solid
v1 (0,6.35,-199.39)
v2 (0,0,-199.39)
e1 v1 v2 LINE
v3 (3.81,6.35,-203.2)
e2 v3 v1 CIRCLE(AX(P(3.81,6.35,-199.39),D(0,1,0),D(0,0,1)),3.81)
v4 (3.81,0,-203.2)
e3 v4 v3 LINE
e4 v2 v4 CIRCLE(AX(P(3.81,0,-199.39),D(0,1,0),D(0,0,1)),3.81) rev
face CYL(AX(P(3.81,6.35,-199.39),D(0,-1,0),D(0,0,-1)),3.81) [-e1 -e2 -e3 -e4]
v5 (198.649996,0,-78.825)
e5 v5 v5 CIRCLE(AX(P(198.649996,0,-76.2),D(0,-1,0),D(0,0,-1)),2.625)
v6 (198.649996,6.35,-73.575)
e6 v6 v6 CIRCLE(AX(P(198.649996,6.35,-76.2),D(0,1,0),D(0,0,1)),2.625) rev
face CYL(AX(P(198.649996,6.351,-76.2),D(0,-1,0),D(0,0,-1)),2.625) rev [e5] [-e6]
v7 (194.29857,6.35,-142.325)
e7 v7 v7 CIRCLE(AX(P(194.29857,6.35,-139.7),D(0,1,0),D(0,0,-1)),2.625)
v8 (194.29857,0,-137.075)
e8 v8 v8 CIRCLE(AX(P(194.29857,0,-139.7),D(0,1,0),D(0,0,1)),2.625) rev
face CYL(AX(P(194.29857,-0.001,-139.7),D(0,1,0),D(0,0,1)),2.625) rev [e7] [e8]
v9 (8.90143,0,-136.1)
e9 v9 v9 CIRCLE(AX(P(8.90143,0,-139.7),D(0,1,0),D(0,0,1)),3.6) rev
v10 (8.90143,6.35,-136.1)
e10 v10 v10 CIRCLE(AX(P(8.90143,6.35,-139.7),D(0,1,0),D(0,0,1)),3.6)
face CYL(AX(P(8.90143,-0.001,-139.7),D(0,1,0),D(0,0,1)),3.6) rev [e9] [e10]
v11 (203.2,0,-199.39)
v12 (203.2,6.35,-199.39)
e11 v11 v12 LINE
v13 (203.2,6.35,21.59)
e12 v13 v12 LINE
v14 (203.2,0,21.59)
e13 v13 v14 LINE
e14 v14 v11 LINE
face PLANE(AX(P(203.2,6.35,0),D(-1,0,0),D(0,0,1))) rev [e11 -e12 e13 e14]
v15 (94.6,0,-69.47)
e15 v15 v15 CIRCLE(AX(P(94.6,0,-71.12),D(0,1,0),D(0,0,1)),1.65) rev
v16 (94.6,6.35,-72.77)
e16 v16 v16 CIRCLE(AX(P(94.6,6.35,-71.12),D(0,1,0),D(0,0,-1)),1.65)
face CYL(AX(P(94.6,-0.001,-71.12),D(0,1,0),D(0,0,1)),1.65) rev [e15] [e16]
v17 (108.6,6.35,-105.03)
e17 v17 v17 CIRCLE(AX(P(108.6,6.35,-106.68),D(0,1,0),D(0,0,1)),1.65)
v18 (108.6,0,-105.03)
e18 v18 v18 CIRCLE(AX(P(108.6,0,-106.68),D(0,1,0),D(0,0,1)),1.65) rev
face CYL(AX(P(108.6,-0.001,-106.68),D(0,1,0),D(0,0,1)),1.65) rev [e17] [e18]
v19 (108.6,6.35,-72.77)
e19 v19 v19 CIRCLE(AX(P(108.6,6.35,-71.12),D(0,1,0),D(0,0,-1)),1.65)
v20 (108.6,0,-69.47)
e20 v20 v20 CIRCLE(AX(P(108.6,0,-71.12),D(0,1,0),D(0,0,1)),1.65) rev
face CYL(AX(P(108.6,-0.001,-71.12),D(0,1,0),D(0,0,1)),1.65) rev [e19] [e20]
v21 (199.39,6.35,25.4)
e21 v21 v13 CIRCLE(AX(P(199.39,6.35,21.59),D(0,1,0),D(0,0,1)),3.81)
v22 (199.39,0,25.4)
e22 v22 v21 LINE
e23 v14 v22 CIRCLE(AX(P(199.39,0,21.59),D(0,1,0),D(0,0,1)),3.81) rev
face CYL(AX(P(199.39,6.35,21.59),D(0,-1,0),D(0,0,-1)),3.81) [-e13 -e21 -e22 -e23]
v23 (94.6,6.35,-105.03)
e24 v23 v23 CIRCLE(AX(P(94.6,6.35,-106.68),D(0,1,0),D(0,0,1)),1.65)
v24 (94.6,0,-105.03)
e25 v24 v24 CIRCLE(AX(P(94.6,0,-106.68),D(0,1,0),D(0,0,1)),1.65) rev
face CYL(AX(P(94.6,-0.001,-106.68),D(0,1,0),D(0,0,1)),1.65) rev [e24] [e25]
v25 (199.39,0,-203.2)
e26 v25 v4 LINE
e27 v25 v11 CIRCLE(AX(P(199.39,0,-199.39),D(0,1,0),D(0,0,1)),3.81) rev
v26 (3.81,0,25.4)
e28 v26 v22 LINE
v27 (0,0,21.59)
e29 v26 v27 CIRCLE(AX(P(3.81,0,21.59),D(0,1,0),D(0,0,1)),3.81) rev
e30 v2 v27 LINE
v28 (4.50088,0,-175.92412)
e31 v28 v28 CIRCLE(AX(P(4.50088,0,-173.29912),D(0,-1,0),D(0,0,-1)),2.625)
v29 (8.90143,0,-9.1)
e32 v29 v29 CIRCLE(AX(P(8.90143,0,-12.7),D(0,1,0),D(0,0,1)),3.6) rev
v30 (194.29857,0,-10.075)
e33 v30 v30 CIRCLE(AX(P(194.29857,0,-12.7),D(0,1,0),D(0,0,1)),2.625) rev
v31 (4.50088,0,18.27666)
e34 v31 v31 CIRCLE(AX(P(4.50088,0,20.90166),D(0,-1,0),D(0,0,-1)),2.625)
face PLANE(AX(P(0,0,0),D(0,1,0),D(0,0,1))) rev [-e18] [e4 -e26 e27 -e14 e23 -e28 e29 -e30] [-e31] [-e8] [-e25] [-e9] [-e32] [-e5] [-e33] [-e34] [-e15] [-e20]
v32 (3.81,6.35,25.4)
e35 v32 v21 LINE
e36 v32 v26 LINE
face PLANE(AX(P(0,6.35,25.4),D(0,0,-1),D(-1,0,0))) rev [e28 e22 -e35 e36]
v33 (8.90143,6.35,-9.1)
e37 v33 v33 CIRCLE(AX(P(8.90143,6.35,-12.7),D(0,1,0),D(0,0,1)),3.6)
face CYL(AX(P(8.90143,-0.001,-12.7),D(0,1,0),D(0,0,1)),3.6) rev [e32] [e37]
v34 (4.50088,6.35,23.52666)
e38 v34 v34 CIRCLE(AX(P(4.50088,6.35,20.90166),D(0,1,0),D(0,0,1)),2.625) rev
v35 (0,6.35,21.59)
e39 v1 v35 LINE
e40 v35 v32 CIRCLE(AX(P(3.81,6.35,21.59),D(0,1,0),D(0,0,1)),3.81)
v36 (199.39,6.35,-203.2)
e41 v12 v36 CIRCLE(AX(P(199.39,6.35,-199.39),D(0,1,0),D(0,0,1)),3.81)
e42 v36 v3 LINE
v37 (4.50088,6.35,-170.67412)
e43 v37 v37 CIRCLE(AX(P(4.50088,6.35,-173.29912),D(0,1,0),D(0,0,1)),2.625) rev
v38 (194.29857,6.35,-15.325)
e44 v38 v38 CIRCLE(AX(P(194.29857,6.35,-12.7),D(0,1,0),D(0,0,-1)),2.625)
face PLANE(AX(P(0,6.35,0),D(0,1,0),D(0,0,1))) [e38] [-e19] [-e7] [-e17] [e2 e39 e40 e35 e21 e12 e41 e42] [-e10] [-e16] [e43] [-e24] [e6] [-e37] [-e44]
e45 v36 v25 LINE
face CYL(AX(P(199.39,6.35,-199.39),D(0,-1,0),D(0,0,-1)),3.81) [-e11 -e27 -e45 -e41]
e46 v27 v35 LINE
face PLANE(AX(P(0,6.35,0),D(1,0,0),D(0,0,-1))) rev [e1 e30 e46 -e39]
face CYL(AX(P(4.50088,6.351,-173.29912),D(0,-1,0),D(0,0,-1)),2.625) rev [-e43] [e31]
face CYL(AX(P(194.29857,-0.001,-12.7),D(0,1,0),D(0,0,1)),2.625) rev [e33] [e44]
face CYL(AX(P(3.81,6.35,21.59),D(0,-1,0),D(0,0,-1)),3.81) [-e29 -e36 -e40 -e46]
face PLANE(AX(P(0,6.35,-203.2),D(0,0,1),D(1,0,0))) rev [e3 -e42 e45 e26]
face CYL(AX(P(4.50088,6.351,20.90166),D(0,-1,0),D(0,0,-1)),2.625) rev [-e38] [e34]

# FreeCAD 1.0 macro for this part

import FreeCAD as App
import Part
import Sketcher
Q = App.Units.Quantity


def edges_at(feature, points):
    """Names of the edges that pass closest to the given points."""
    edges = feature.Shape.Edges
    near = lambda p: min(range(len(edges)), key=lambda i: edges[i].distToShape(Part.Vertex(*p))[0])
    return sorted({f"Edge{near(p) + 1}" for p in points})


def add_polygon(sketch, points):
    """Adds a closed chain of lines whose ends are joined by coincident constraints."""
    first, n = sketch.GeometryCount, len(points)
    for a, b in zip(points, points[1:] + points[:1]):
        sketch.addGeometry(Part.LineSegment(App.Vector(*a, 0), App.Vector(*b, 0)), False)
    for i in range(n):
        sketch.addConstraint(Sketcher.Constraint("Coincident", first + i, 2, first + (i + 1) % n, 1))

doc = App.newDocument("Part")
params = doc.addObject("Spreadsheet::Sheet", "Params")
for row, (alias, value) in enumerate([
    ("sketch1_width", "8 in"),
    ("sketch1_height", "9 in"),
    ("pad1_length", "0.25 in"),
    ("fillet_radius", "0.15 in"),
], start=1):
    params.set(f"A{row}", alias)
    params.set(f"B{row}", "=" + value)
    params.setAlias(f"B{row}", alias)

body = doc.addObject("PartDesign::Body", "Body")

sketch1 = doc.addObject("Sketcher::SketchObject", "Sketch")
body.addObject(sketch1)
sketch1.AttachmentSupport = (doc.XZ_Plane, [""])
sketch1.MapMode = "FlatFace"
add_polygon(sketch1, [(0, -203), (0, 25), (203, 25), (203, -203)])
sketch1.addConstraint([
    Sketcher.Constraint("Vertical", 0),
    Sketcher.Constraint("Horizontal", 1),
    Sketcher.Constraint("Vertical", 2),
    Sketcher.Constraint("Horizontal", 3),
    Sketcher.Constraint("PointOnObject", 0, 2, -2),
    Sketcher.Constraint("DistanceX", 1, 1, 1, 2, Q("8 in")),
    Sketcher.Constraint("DistanceY", 0, 1, 0, 2, Q("9 in")),
    Sketcher.Constraint("DistanceY", -1, 1, 0, 2, Q("1 in")),
])
sketch1.setExpression("Constraints[9]", "Params.sketch1_width")
sketch1.setExpression("Constraints[10]", "Params.sketch1_height")
pad1 = doc.addObject("PartDesign::Pad", "Pad")
body.addObject(pad1)
pad1.Profile = sketch1
pad1.setExpression("Length", "Params.pad1_length")
pad1.Reversed = True

sketch2 = doc.addObject("Sketcher::SketchObject", "Sketch001")
body.addObject(sketch2)
sketch2.AttachmentSupport = (doc.XZ_Plane, [""])
sketch2.MapMode = "FlatFace"
sketch2.AttachmentOffset = App.Placement(App.Vector(0, 0, -0.25 * 25.4), App.Rotation())
sketch2.addGeometry(Part.Circle(App.Vector(8.9, -12.7, 0), App.Vector(0, 0, 1), 3.6), False)
sketch2.addConstraint([
    Sketcher.Constraint("DistanceY", 0, 3, -1, 1, Q("0.5 in")),
    Sketcher.Constraint("Diameter", 0, 7.2),
    Sketcher.Constraint("DistanceX", -1, 1, 0, 3, 8.90143),
])
pocket1 = doc.addObject("PartDesign::Pocket", "Pocket")
body.addObject(pocket1)
pocket1.Profile = sketch2
pocket1.Type = "UpToFirst"
pocket1.Reversed = True

sketch3 = doc.addObject("Sketcher::SketchObject", "Sketch002")
body.addObject(sketch3)
sketch3.AttachmentSupport = (doc.XZ_Plane, [""])
sketch3.MapMode = "FlatFace"
sketch3.AttachmentOffset = App.Placement(App.Vector(0, 0, -0.25 * 25.4), App.Rotation())
sketch3.addGeometry(Part.Circle(App.Vector(8.9, -139.7, 0), App.Vector(0, 0, 1), 3.6), False)
sketch3.addConstraint([
    Sketcher.Constraint("DistanceY", 0, 3, -1, 1, Q("5.5 in")),
    Sketcher.Constraint("Diameter", 0, 7.2),
    Sketcher.Constraint("DistanceX", -1, 1, 0, 3, 8.90143),
])
pocket2 = doc.addObject("PartDesign::Pocket", "Pocket001")
body.addObject(pocket2)
pocket2.Profile = sketch3
pocket2.Type = "UpToFirst"
pocket2.Reversed = True

sketch4 = doc.addObject("Sketcher::SketchObject", "Sketch003")
body.addObject(sketch4)
sketch4.AttachmentSupport = (doc.XZ_Plane, [""])
sketch4.MapMode = "FlatFace"
sketch4.AttachmentOffset = App.Placement(App.Vector(0, 0, -0.25 * 25.4), App.Rotation())
sketch4.addGeometry(Part.Circle(App.Vector(194.3, -12.7, 0), App.Vector(0, 0, 1), 2.6), False)
sketch4.addConstraint([
    Sketcher.Constraint("DistanceY", 0, 3, -1, 1, Q("0.5 in")),
    Sketcher.Constraint("Diameter", 0, 5.25),
    Sketcher.Constraint("DistanceX", -1, 1, 0, 3, 194.29857),
])
pocket3 = doc.addObject("PartDesign::Pocket", "Pocket002")
body.addObject(pocket3)
pocket3.Profile = sketch4
pocket3.Type = "UpToFirst"
pocket3.Reversed = True

sketch5 = doc.addObject("Sketcher::SketchObject", "Sketch004")
body.addObject(sketch5)
sketch5.AttachmentSupport = (doc.XZ_Plane, [""])
sketch5.MapMode = "FlatFace"
sketch5.AttachmentOffset = App.Placement(App.Vector(0, 0, -0.25 * 25.4), App.Rotation())
sketch5.addGeometry(Part.Circle(App.Vector(194.3, -139.7, 0), App.Vector(0, 0, 1), 2.6), False)
sketch5.addConstraint([
    Sketcher.Constraint("DistanceY", 0, 3, -1, 1, Q("5.5 in")),
    Sketcher.Constraint("Diameter", 0, 5.25),
    Sketcher.Constraint("DistanceX", -1, 1, 0, 3, 194.29857),
])
pocket4 = doc.addObject("PartDesign::Pocket", "Pocket003")
body.addObject(pocket4)
pocket4.Profile = sketch5
pocket4.Type = "UpToFirst"
pocket4.Reversed = True

sketch6 = doc.addObject("Sketcher::SketchObject", "Sketch005")
body.addObject(sketch6)
sketch6.AttachmentSupport = (doc.XZ_Plane, [""])
sketch6.MapMode = "FlatFace"
sketch6.addGeometry(Part.Circle(App.Vector(4.5, 20.9, 0), App.Vector(0, 0, 1), 2.6), False)
sketch6.addConstraint([
    Sketcher.Constraint("Diameter", 0, 5.25),
    Sketcher.Constraint("DistanceX", -1, 1, 0, 3, Q("0.1772 in")),
    Sketcher.Constraint("DistanceY", -1, 1, 0, 3, Q("0.8229 in")),
])
pocket5 = doc.addObject("PartDesign::Pocket", "Pocket004")
body.addObject(pocket5)
pocket5.Profile = sketch6
pocket5.Type = "UpToFirst"

sketch7 = doc.addObject("Sketcher::SketchObject", "Sketch006")
body.addObject(sketch7)
sketch7.AttachmentSupport = (doc.XZ_Plane, [""])
sketch7.MapMode = "FlatFace"
sketch7.addGeometry(Part.Circle(App.Vector(4.5, -173.3, 0), App.Vector(0, 0, 1), 2.6), False)
sketch7.addConstraint([
    Sketcher.Constraint("Diameter", 0, 5.25),
    Sketcher.Constraint("DistanceX", -1, 1, 0, 3, Q("0.1772 in")),
    Sketcher.Constraint("DistanceY", 0, 3, -1, 1, Q("6.8228 in")),
])
pocket6 = doc.addObject("PartDesign::Pocket", "Pocket005")
body.addObject(pocket6)
pocket6.Profile = sketch7
pocket6.Type = "UpToFirst"

sketch8 = doc.addObject("Sketcher::SketchObject", "Sketch007")
body.addObject(sketch8)
sketch8.AttachmentSupport = (doc.XZ_Plane, [""])
sketch8.MapMode = "FlatFace"
sketch8.addGeometry(Part.Circle(App.Vector(198.6, -76.2, 0), App.Vector(0, 0, 1), 2.6), False)
sketch8.addConstraint([
    Sketcher.Constraint("DistanceY", 0, 3, -1, 1, Q("3 in")),
    Sketcher.Constraint("Diameter", 0, 5.25),
    Sketcher.Constraint("DistanceX", -1, 1, 0, 3, 198.649996),
])
pocket7 = doc.addObject("PartDesign::Pocket", "Pocket006")
body.addObject(pocket7)
pocket7.Profile = sketch8
pocket7.Type = "UpToFirst"
doc.recompute()

fillet = doc.addObject("PartDesign::Fillet", "Fillet")
body.addObject(fillet)
fillet.Base = (pocket7, edges_at(pocket7, [
    (0, 3.175, -203.2),
    (203.2, 3.175, -203.2),
    (203.2, 3.175, 25.4),
    (0, 3.175, 25.4),
]))
fillet.setExpression("Radius", "Params.fillet_radius")

sketch9 = doc.addObject("Sketcher::SketchObject", "Sketch008")
body.addObject(sketch9)
sketch9.AttachmentSupport = (doc.XZ_Plane, [""])
sketch9.MapMode = "FlatFace"
sketch9.AttachmentOffset = App.Placement(App.Vector(0, 0, -0.25 * 25.4), App.Rotation())
sketch9.addGeometry(Part.Circle(App.Vector(94.6, -106.7, 0), App.Vector(0, 0, 1), 1.6), False)
sketch9.addConstraint([
    Sketcher.Constraint("DistanceY", 0, 3, -1, 1, Q("4.2 in")),
    Sketcher.Constraint("Diameter", 0, 3.3),
    Sketcher.Constraint("DistanceX", -1, 1, 0, 3, 94.6),
])
pocket8 = doc.addObject("PartDesign::Pocket", "Pocket007")
body.addObject(pocket8)
pocket8.Profile = sketch9
pocket8.Type = "UpToFirst"
pocket8.Reversed = True

sketch10 = doc.addObject("Sketcher::SketchObject", "Sketch009")
body.addObject(sketch10)
sketch10.AttachmentSupport = (doc.XZ_Plane, [""])
sketch10.MapMode = "FlatFace"
sketch10.AttachmentOffset = App.Placement(App.Vector(0, 0, -0.25 * 25.4), App.Rotation())
sketch10.addGeometry(Part.Circle(App.Vector(108.6, -106.7, 0), App.Vector(0, 0, 1), 1.6), False)
sketch10.addConstraint([
    Sketcher.Constraint("DistanceY", 0, 3, -1, 1, Q("4.2 in")),
    Sketcher.Constraint("Diameter", 0, 3.3),
    Sketcher.Constraint("DistanceX", -1, 1, 0, 3, 108.6),
])
pocket9 = doc.addObject("PartDesign::Pocket", "Pocket008")
body.addObject(pocket9)
pocket9.Profile = sketch10
pocket9.Type = "UpToFirst"
pocket9.Reversed = True

sketch11 = doc.addObject("Sketcher::SketchObject", "Sketch010")
body.addObject(sketch11)
sketch11.AttachmentSupport = (doc.XZ_Plane, [""])
sketch11.MapMode = "FlatFace"
sketch11.AttachmentOffset = App.Placement(App.Vector(0, 0, -0.25 * 25.4), App.Rotation())
sketch11.addGeometry(Part.Circle(App.Vector(108.6, -71.1, 0), App.Vector(0, 0, 1), 1.6), False)
sketch11.addConstraint([
    Sketcher.Constraint("DistanceY", 0, 3, -1, 1, Q("2.8 in")),
    Sketcher.Constraint("Diameter", 0, 3.3),
    Sketcher.Constraint("DistanceX", -1, 1, 0, 3, 108.6),
])
pocket10 = doc.addObject("PartDesign::Pocket", "Pocket009")
body.addObject(pocket10)
pocket10.Profile = sketch11
pocket10.Type = "UpToFirst"
pocket10.Reversed = True

sketch12 = doc.addObject("Sketcher::SketchObject", "Sketch011")
body.addObject(sketch12)
sketch12.AttachmentSupport = (doc.XZ_Plane, [""])
sketch12.MapMode = "FlatFace"
sketch12.AttachmentOffset = App.Placement(App.Vector(0, 0, -0.25 * 25.4), App.Rotation())
sketch12.addGeometry(Part.Circle(App.Vector(94.6, -71.1, 0), App.Vector(0, 0, 1), 1.6), False)
sketch12.addConstraint([
    Sketcher.Constraint("DistanceY", 0, 3, -1, 1, Q("2.8 in")),
    Sketcher.Constraint("Diameter", 0, 3.3),
    Sketcher.Constraint("DistanceX", -1, 1, 0, 3, 94.6),
])
pocket11 = doc.addObject("PartDesign::Pocket", "Pocket010")
body.addObject(pocket11)
pocket11.Profile = sketch12
pocket11.Type = "UpToFirst"
pocket11.Reversed = True

doc.recompute()
